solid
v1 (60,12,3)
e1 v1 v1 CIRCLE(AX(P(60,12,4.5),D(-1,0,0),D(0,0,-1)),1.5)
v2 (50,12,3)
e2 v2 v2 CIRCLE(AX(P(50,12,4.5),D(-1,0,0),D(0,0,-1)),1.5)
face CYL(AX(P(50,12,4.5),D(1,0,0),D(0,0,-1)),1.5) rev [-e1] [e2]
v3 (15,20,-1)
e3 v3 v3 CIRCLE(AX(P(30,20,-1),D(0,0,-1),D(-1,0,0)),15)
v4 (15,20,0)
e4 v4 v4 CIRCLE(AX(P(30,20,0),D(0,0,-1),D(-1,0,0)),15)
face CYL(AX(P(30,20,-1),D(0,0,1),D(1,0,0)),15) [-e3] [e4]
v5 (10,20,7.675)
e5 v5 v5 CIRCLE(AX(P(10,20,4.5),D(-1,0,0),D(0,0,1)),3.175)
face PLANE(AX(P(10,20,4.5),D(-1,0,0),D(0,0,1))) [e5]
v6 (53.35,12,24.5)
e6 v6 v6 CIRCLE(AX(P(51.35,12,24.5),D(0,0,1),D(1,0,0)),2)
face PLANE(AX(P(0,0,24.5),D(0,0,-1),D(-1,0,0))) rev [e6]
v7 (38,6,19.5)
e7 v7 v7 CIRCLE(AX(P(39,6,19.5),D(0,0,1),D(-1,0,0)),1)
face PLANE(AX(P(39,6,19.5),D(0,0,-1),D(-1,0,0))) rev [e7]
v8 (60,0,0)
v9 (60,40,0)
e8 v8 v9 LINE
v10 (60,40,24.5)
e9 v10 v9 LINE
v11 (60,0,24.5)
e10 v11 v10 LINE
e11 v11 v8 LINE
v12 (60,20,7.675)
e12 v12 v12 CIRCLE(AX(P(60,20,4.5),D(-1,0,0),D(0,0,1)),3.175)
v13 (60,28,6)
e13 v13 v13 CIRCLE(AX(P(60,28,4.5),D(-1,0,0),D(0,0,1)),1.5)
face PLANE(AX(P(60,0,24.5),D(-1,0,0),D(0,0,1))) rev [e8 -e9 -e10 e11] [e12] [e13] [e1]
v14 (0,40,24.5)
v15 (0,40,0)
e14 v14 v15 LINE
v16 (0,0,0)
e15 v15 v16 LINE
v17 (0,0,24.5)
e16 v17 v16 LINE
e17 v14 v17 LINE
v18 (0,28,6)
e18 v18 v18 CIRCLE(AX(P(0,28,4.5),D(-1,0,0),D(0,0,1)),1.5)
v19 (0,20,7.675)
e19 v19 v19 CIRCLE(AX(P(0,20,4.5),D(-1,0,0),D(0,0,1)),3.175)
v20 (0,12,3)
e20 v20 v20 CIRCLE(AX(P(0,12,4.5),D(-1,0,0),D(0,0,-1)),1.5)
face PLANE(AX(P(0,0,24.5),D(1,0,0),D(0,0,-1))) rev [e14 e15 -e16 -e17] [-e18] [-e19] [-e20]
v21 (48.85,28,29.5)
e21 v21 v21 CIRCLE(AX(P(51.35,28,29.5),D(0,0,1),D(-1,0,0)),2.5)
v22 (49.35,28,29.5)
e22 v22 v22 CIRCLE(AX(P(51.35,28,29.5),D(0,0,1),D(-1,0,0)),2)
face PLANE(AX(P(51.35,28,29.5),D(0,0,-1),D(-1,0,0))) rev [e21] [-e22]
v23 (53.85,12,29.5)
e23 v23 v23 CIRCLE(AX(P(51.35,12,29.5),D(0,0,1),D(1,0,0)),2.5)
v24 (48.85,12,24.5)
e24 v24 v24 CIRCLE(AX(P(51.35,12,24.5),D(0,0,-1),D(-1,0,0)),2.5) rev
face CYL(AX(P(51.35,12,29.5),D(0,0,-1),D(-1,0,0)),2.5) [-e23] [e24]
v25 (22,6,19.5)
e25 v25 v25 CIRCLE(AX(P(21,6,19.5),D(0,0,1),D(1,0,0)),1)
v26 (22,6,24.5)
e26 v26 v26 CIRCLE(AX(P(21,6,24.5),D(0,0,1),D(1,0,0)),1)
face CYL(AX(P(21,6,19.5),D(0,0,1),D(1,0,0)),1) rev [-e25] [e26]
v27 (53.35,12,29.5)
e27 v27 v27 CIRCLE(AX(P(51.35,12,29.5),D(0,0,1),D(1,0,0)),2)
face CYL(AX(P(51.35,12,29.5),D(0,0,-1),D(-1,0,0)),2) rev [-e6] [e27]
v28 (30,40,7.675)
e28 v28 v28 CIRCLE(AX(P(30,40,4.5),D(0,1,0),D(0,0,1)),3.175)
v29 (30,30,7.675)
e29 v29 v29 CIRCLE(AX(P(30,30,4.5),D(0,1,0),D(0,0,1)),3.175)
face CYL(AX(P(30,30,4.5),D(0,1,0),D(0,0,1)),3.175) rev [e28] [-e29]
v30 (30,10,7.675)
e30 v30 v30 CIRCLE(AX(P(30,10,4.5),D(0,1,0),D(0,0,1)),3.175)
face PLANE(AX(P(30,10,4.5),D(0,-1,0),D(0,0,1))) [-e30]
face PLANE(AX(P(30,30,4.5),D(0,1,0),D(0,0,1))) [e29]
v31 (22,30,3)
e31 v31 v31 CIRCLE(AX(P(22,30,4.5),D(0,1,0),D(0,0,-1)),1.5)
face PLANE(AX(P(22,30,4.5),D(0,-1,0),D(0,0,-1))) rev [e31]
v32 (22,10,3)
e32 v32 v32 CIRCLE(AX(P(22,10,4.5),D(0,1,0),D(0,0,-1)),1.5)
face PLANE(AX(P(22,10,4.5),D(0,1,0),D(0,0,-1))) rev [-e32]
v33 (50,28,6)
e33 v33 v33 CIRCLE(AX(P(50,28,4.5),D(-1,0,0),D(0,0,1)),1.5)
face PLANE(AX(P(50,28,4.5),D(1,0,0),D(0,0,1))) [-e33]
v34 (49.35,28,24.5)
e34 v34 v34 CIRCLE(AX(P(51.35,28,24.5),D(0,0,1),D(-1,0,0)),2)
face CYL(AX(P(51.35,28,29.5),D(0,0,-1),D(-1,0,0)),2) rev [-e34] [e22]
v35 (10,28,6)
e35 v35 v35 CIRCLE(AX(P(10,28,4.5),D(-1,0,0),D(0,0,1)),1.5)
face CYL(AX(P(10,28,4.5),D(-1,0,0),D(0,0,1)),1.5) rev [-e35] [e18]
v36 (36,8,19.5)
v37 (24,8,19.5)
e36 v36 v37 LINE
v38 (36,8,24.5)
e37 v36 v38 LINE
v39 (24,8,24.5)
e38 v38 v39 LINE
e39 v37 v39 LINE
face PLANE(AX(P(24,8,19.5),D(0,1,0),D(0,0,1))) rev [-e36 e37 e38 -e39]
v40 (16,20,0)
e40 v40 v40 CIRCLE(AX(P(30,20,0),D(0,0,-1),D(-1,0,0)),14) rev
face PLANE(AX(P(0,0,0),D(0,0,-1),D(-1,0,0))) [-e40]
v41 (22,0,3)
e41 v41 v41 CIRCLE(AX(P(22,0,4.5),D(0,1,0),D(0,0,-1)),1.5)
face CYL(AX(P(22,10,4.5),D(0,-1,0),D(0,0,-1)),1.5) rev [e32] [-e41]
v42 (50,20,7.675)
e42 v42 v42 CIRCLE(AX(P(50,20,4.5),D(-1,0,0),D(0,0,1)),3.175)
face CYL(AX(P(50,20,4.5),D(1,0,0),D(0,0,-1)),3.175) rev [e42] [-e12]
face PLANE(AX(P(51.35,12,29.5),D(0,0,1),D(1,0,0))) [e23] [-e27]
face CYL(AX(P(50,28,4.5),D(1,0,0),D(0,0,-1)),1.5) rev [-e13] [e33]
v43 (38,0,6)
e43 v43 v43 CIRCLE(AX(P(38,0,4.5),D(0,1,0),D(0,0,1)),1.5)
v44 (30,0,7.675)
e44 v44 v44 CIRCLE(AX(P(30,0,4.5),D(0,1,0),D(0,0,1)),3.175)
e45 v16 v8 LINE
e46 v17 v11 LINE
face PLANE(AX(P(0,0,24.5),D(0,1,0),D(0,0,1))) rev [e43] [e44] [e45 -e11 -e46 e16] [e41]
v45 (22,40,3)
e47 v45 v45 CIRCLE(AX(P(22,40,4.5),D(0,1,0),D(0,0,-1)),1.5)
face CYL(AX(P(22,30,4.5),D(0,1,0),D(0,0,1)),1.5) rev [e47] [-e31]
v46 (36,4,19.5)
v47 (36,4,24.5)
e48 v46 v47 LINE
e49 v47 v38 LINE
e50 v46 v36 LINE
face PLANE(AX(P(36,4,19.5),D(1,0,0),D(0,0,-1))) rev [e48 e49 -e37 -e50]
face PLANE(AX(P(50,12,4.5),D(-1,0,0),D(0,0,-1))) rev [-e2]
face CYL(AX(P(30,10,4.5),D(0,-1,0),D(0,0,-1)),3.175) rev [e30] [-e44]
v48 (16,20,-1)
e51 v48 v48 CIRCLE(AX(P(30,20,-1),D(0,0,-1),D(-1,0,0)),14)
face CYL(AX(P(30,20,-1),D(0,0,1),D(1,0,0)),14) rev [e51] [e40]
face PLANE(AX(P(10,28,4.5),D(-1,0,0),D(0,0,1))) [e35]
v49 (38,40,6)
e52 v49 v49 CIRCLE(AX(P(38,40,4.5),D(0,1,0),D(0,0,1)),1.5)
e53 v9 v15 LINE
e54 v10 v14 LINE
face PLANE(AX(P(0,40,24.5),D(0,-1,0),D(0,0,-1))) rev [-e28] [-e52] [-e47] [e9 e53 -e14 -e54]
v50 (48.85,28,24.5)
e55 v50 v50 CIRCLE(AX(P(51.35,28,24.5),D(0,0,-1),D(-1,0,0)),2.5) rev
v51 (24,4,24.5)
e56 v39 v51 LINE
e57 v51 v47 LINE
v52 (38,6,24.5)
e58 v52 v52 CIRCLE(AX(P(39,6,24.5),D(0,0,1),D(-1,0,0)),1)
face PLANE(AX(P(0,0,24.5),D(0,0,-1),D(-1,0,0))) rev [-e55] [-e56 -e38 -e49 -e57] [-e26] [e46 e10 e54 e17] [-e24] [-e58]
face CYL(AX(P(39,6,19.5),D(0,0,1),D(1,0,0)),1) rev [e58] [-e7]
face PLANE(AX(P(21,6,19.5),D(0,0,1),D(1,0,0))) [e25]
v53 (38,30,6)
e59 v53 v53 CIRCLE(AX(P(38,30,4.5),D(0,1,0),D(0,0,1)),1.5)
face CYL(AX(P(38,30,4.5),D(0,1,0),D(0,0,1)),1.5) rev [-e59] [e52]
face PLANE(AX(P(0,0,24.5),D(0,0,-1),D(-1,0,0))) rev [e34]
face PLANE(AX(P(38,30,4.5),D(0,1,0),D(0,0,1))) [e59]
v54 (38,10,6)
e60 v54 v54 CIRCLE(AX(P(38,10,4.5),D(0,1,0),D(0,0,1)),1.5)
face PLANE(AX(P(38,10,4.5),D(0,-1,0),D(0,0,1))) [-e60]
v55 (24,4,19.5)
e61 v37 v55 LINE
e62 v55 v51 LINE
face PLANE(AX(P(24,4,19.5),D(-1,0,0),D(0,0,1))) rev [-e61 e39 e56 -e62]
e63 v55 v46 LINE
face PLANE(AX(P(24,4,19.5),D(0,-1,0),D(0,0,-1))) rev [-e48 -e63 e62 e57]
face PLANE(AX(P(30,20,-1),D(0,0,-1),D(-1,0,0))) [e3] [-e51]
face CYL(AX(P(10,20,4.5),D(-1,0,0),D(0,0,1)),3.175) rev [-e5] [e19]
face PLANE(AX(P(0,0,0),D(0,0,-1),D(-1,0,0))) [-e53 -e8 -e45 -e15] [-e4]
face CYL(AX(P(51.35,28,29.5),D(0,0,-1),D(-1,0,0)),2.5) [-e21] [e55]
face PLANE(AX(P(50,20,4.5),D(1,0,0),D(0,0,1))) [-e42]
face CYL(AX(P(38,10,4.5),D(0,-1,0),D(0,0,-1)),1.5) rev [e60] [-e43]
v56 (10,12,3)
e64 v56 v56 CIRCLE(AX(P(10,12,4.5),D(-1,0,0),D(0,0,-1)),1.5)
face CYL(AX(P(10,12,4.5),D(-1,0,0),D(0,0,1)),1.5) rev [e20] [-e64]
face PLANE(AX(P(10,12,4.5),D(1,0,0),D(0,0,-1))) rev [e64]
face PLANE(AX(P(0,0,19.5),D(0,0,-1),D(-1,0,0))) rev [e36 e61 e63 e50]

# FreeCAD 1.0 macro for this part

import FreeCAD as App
import Part
import Sketcher
from FreeCAD import Vector
Q = App.Units.Quantity


def add_polygon(sketch, points):
    """Adds a closed chain of lines whose ends are joined by coincident constraints."""
    first, n = sketch.GeometryCount, len(points)
    for a, b in zip(points, points[1:] + points[:1]):
        sketch.addGeometry(Part.LineSegment(App.Vector(*a, 0), App.Vector(*b, 0)), False)
    for i in range(n):
        sketch.addConstraint(Sketcher.Constraint("Coincident", first + i, 2, first + (i + 1) % n, 1))

doc = App.newDocument("Part")
body = doc.addObject("PartDesign::Body", "Body")

# Sketch on XY plane
sketch1 = body.newObject("Sketcher::SketchObject", "Sketch")
sketch1.AttachmentSupport = (doc.getObject("XY_Plane"), [""])
sketch1.MapMode = "FlatFace"
add_polygon(sketch1, [(0, 40), (0, 0), (60, 0), (60, 40)])  # lines 0-3
sketch1.addConstraint([
    Sketcher.Constraint("Vertical", 0),
    Sketcher.Constraint("Horizontal", 1),
    Sketcher.Constraint("Vertical", 2),
    Sketcher.Constraint("Horizontal", 3),
    Sketcher.Constraint("Coincident", 0, 2, -1, 1),
    Sketcher.Constraint("DistanceX", 1, 1, 1, 2, Q("60 mm")),
    Sketcher.Constraint("DistanceY", 0, 2, 0, 1, Q("40 mm")),
])
pad1 = body.newObject("PartDesign::Pad", "Pad")
pad1.Profile = sketch1
pad1.Length = 24.5

# Sketch on XY plane
sketch2 = body.newObject("Sketcher::SketchObject", "Sketch001")
sketch2.AttachmentSupport = (doc.getObject("XY_Plane"), [""])
sketch2.MapMode = "FlatFace"
sketch2.addGeometry([
    Part.Circle(Vector(30, 20, 0), Vector(0, 0, 1), 15),
    Part.Circle(Vector(30, 20, 0), Vector(0, 0, 1), 14),
], False)
sketch2.addConstraint([
    Sketcher.Constraint("Coincident", 1, 3, 0, 3),
    Sketcher.Constraint("Diameter", 0, Q("30 mm")),
    Sketcher.Constraint("Diameter", 1, Q("28 mm")),
    Sketcher.Constraint("DistanceX", -1, 1, 0, 3, Q("30 mm")),
    Sketcher.Constraint("DistanceY", -1, 1, 0, 3, Q("20 mm")),
])
pad2 = body.newObject("PartDesign::Pad", "Pad001")
pad2.Profile = sketch2
pad2.Length = 1
pad2.Reversed = True

# Sketch on YZ plane
sketch3 = body.newObject("Sketcher::SketchObject", "Sketch002")
sketch3.AttachmentSupport = (doc.getObject("YZ_Plane"), [""])
sketch3.MapMode = "FlatFace"
sketch3.addGeometry([
    Part.Circle(Vector(20, 4.5, 0), Vector(0, 0, 1), 3.175),
    Part.Circle(Vector(28, 4.5, 0), Vector(0, 0, 1), 1.5),
    Part.Circle(Vector(12, 4.5, 0), Vector(0, 0, 1), 1.5),
], False)
sketch3.addConstraint([
    Sketcher.Constraint("Equal", 1, 2),
    Sketcher.Constraint("Horizontal", 0, 3, 1, 3),
    Sketcher.Constraint("Horizontal", 1, 3, 2, 3),
    Sketcher.Constraint("Diameter", 1, Q("3 mm")),
    Sketcher.Constraint("Diameter", 0, Q("6.35 mm")),
    Sketcher.Constraint("DistanceX", -1, 1, 0, 3, Q("20 mm")),
    Sketcher.Constraint("DistanceX", -1, 1, 1, 3, Q("28 mm")),
    Sketcher.Constraint("DistanceX", -1, 1, 2, 3, Q("12 mm")),
    Sketcher.Constraint("DistanceY", -1, 1, 0, 3, Q("4.5 mm")),
])
pocket1 = body.newObject("PartDesign::Pocket", "Pocket")
pocket1.Profile = sketch3
pocket1.Length = 10
pocket1.Reversed = True
doc.recompute()

datumplane = body.newObject("PartDesign::Plane", "DatumPlane")
datumplane.AttachmentSupport = (doc.getObject("YZ_Plane"), [""])
datumplane.MapMode = "FlatFace"
datumplane.AttachmentOffset = App.Placement(Vector(0, 0, 30), App.Rotation())
mirrored = body.newObject("PartDesign::Mirrored", "Mirrored")
mirrored.Originals = [pocket1]
mirrored.MirrorPlane = (datumplane, [""])
body.Tip = mirrored

# Sketch on XZ plane
sketch4 = body.newObject("Sketcher::SketchObject", "Sketch003")
sketch4.AttachmentSupport = (doc.getObject("XZ_Plane"), [""])
sketch4.MapMode = "FlatFace"
sketch4.AttachmentOffset = App.Placement(Vector(0, 0, -40), App.Rotation())
sketch4.addGeometry([
    Part.Circle(Vector(30, 4.5, 0), Vector(0, 0, 1), 3.175),
    Part.Circle(Vector(38, 4.5, 0), Vector(0, 0, 1), 1.5),
    Part.Circle(Vector(22, 4.5, 0), Vector(0, 0, 1), 1.5),
], False)
sketch4.addConstraint([
    Sketcher.Constraint("Equal", 1, 2),
    Sketcher.Constraint("Horizontal", 0, 3, 1, 3),
    Sketcher.Constraint("Horizontal", 1, 3, 2, 3),
    Sketcher.Constraint("Diameter", 1, Q("3 mm")),
    Sketcher.Constraint("Diameter", 0, Q("6.35 mm")),
    Sketcher.Constraint("DistanceX", -1, 1, 0, 3, Q("30 mm")),
    Sketcher.Constraint("DistanceX", -1, 1, 1, 3, Q("38 mm")),
    Sketcher.Constraint("DistanceX", -1, 1, 2, 3, Q("22 mm")),
    Sketcher.Constraint("DistanceY", -1, 1, 0, 3, Q("4.5 mm")),
])
pocket2 = body.newObject("PartDesign::Pocket", "Pocket001")
pocket2.Profile = sketch4
pocket2.Length = 10
pocket2.Reversed = True
doc.recompute()

datumplane2 = body.newObject("PartDesign::Plane", "DatumPlane001")
datumplane2.AttachmentSupport = (doc.getObject("XZ_Plane"), [""])
datumplane2.MapMode = "FlatFace"
datumplane2.AttachmentOffset = App.Placement(Vector(0, 0, -20), App.Rotation())
mirrored2 = body.newObject("PartDesign::Mirrored", "Mirrored001")
mirrored2.Originals = [pocket2]
mirrored2.MirrorPlane = (datumplane2, [""])
body.Tip = mirrored2

# Sketch on XY plane
sketch5 = body.newObject("Sketcher::SketchObject", "Sketch004")
sketch5.AttachmentSupport = (doc.getObject("XY_Plane"), [""])
sketch5.MapMode = "FlatFace"
sketch5.AttachmentOffset = App.Placement(Vector(0, 0, 24.5), App.Rotation())
sketch5.addGeometry(Part.Circle(Vector(21, 6, 0), Vector(0, 0, 1), 1), False)  # 0
sketch5.addGeometry(Part.Circle(Vector(39, 6, 0), Vector(0, 0, 1), 1), False)  # 1
add_polygon(sketch5, [(24, 8), (24, 4), (36, 4), (36, 8)])  # lines 2-5
sketch5.addConstraint([
    Sketcher.Constraint("Vertical", 2),
    Sketcher.Constraint("Horizontal", 3),
    Sketcher.Constraint("Vertical", 4),
    Sketcher.Constraint("Horizontal", 5),
    Sketcher.Constraint("Equal", 0, 1),
    Sketcher.Constraint("Horizontal", 0, 3, 1, 3),
    Sketcher.Constraint("Diameter", 0, Q("2 mm")),
    Sketcher.Constraint("DistanceX", 3, 1, 3, 2, Q("12 mm")),
    Sketcher.Constraint("DistanceY", 2, 2, 2, 1, Q("4 mm")),
    Sketcher.Constraint("DistanceX", -1, 1, 0, 3, Q("21 mm")),
    Sketcher.Constraint("DistanceY", -1, 1, 0, 3, Q("6 mm")),
    Sketcher.Constraint("DistanceX", -1, 1, 1, 3, Q("39 mm")),
    Sketcher.Constraint("DistanceX", -1, 1, 2, 2, Q("24 mm")),
    Sketcher.Constraint("DistanceY", -1, 1, 2, 2, Q("4 mm")),
])
pocket3 = body.newObject("PartDesign::Pocket", "Pocket002")
pocket3.Profile = sketch5
pocket3.Length = 5

# Sketch on XY plane
sketch6 = body.newObject("Sketcher::SketchObject", "Sketch005")
sketch6.AttachmentSupport = (doc.getObject("XY_Plane"), [""])
sketch6.MapMode = "FlatFace"
sketch6.AttachmentOffset = App.Placement(Vector(0, 0, 24.5), App.Rotation())
sketch6.addGeometry([
    Part.Circle(Vector(51.35, 12, 0), Vector(0, 0, 1), 2.5),
    Part.Circle(Vector(51.35, 12, 0), Vector(0, 0, 1), 2),
    Part.Circle(Vector(51.35, 28, 0), Vector(0, 0, 1), 2.5),
    Part.Circle(Vector(51.35, 28, 0), Vector(0, 0, 1), 2),
], False)
sketch6.addConstraint([
    Sketcher.Constraint("Coincident", 1, 3, 0, 3),
    Sketcher.Constraint("Coincident", 3, 3, 2, 3),
    Sketcher.Constraint("Equal", 0, 2),
    Sketcher.Constraint("Equal", 1, 3),
    Sketcher.Constraint("Vertical", 1, 3, 2, 3),
    Sketcher.Constraint("Diameter", 0, Q("5 mm")),
    Sketcher.Constraint("Diameter", 1, Q("4 mm")),
    Sketcher.Constraint("DistanceY", -1, 1, 0, 3, Q("12 mm")),
    Sketcher.Constraint("DistanceY", -1, 1, 2, 3, Q("28 mm")),
    Sketcher.Constraint("DistanceX", -1, 1, 0, 3, Q("51.35 mm")),
])
pad3 = body.newObject("PartDesign::Pad", "Pad002")
pad3.Profile = sketch6
pad3.Length = 5

doc.recompute()
